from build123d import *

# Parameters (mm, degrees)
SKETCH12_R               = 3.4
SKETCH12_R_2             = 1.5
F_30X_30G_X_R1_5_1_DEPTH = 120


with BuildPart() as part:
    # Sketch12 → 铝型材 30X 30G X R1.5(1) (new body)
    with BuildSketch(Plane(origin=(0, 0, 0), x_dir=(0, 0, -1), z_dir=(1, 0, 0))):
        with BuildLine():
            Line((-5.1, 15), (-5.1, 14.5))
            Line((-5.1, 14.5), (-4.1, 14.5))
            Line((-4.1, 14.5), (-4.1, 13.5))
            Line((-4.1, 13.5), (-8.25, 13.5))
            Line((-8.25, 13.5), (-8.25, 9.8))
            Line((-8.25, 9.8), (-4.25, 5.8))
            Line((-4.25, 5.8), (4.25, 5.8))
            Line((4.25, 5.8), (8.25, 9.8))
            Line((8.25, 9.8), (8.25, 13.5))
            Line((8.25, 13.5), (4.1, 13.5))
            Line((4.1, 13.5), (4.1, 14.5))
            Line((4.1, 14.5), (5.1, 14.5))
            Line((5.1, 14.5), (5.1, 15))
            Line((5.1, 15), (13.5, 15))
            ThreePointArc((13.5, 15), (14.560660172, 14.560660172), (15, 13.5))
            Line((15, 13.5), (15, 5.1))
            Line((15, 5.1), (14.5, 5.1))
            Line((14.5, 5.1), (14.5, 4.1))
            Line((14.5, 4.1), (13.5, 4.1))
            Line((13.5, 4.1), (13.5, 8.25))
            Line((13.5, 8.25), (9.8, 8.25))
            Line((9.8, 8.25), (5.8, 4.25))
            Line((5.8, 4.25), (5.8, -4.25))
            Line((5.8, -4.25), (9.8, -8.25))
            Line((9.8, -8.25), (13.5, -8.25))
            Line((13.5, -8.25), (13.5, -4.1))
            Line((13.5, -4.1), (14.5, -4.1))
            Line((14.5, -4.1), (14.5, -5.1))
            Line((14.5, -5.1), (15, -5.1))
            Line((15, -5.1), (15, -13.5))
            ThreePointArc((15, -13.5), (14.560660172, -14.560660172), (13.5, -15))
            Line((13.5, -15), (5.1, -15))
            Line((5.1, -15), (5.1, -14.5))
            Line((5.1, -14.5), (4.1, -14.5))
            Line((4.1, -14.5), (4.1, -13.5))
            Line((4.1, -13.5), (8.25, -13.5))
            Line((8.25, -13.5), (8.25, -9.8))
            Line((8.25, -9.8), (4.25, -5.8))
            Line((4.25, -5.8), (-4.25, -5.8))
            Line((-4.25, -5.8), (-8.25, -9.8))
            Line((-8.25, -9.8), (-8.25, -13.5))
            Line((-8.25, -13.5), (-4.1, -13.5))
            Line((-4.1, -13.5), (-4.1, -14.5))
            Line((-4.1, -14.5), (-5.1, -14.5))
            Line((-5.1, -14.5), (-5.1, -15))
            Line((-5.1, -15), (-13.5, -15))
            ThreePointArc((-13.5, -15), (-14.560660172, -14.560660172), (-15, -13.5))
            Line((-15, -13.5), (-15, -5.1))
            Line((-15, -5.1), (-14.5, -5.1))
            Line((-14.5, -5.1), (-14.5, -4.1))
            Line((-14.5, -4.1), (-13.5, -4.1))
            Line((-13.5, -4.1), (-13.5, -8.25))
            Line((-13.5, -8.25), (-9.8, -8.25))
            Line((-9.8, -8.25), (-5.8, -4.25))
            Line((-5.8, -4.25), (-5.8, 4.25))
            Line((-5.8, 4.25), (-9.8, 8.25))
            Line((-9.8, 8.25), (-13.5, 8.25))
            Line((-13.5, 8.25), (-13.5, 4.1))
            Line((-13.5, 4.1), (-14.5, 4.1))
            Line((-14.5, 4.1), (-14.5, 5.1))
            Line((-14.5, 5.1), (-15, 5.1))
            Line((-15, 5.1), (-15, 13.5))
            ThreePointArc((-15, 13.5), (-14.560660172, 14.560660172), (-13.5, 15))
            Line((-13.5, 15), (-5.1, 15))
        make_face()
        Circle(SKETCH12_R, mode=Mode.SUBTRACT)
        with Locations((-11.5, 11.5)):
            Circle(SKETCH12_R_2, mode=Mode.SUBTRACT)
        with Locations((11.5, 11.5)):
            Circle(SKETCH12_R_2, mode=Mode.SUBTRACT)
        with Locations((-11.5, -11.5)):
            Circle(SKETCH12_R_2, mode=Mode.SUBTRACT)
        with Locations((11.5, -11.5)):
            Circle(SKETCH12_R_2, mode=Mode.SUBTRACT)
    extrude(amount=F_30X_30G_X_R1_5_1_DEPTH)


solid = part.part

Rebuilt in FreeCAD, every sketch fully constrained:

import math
import FreeCAD as App
import Part
import Sketcher

V = App.Vector

doc = App.newDocument("Part")
body = doc.addObject("PartDesign::Body", "Body")

# Sketch on YZ plane
sketch1 = body.newObject("Sketcher::SketchObject", "Sketch")
sketch1.AttachmentSupport = (doc.getObject("YZ_Plane"), [""])
sketch1.MapMode = "FlatFace"
sketch1.addGeometry([
    Part.LineSegment(V(14.5, 5.1, 0), V(15, 5.1, 0)),  # 0
    Part.LineSegment(V(15, 5.1, 0), V(15, 13.5, 0)),  # 1
    Part.ArcOfCircle(Part.Circle(V(13.5, 13.5, 0), V(0, 0, 1), 1.5), math.radians(0), math.radians(90)),  # 2
    Part.LineSegment(V(13.5, 15, 0), V(5.1, 15, 0)),  # 3
    Part.LineSegment(V(5.1, 15, 0), V(5.1, 14.5, 0)),  # 4
    Part.LineSegment(V(5.1, 14.5, 0), V(4.1, 14.5, 0)),  # 5
    Part.LineSegment(V(4.1, 14.5, 0), V(4.1, 13.5, 0)),  # 6
    Part.LineSegment(V(4.1, 13.5, 0), V(8.2, 13.5, 0)),  # 7
    Part.LineSegment(V(8.2, 13.5, 0), V(8.2, 9.8, 0)),  # 8
    Part.LineSegment(V(8.2, 9.8, 0), V(4.2, 5.8, 0)),  # 9
    Part.LineSegment(V(4.2, 5.8, 0), V(-4.2, 5.8, 0)),  # 10
    Part.LineSegment(V(-4.2, 5.8, 0), V(-8.2, 9.8, 0)),  # 11
    Part.LineSegment(V(-8.2, 9.8, 0), V(-8.2, 13.5, 0)),  # 12
    Part.LineSegment(V(-8.2, 13.5, 0), V(-4.1, 13.5, 0)),  # 13
    Part.LineSegment(V(-4.1, 13.5, 0), V(-4.1, 14.5, 0)),  # 14
    Part.LineSegment(V(-4.1, 14.5, 0), V(-5.1, 14.5, 0)),  # 15
    Part.LineSegment(V(-5.1, 14.5, 0), V(-5.1, 15, 0)),  # 16
    Part.LineSegment(V(-5.1, 15, 0), V(-13.5, 15, 0)),  # 17
    Part.ArcOfCircle(Part.Circle(V(-13.5, 13.5, 0), V(0, 0, 1), 1.5), math.radians(90), math.radians(180)),  # 18
    Part.LineSegment(V(-15, 13.5, 0), V(-15, 5.1, 0)),  # 19
    Part.LineSegment(V(-15, 5.1, 0), V(-14.5, 5.1, 0)),  # 20
    Part.LineSegment(V(-14.5, 5.1, 0), V(-14.5, 4.1, 0)),  # 21
    Part.LineSegment(V(-14.5, 4.1, 0), V(-13.5, 4.1, 0)),  # 22
    Part.LineSegment(V(-13.5, 4.1, 0), V(-13.5, 8.2, 0)),  # 23
    Part.LineSegment(V(-13.5, 8.2, 0), V(-9.8, 8.2, 0)),  # 24
    Part.LineSegment(V(-9.8, 8.2, 0), V(-5.8, 4.2, 0)),  # 25
    Part.LineSegment(V(-5.8, 4.2, 0), V(-5.8, -4.2, 0)),  # 26
    Part.LineSegment(V(-5.8, -4.2, 0), V(-9.8, -8.2, 0)),  # 27
    Part.LineSegment(V(-9.8, -8.2, 0), V(-13.5, -8.2, 0)),  # 28
    Part.LineSegment(V(-13.5, -8.2, 0), V(-13.5, -4.1, 0)),  # 29
    Part.LineSegment(V(-13.5, -4.1, 0), V(-14.5, -4.1, 0)),  # 30
    Part.LineSegment(V(-14.5, -4.1, 0), V(-14.5, -5.1, 0)),  # 31
    Part.LineSegment(V(-14.5, -5.1, 0), V(-15, -5.1, 0)),  # 32
    Part.LineSegment(V(-15, -5.1, 0), V(-15, -13.5, 0)),  # 33
    Part.ArcOfCircle(Part.Circle(V(-13.5, -13.5, 0), V(0, 0, 1), 1.5), math.radians(180), math.radians(270)),  # 34
    Part.LineSegment(V(-13.5, -15, 0), V(-5.1, -15, 0)),  # 35
    Part.LineSegment(V(-5.1, -15, 0), V(-5.1, -14.5, 0)),  # 36
    Part.LineSegment(V(-5.1, -14.5, 0), V(-4.1, -14.5, 0)),  # 37
    Part.LineSegment(V(-4.1, -14.5, 0), V(-4.1, -13.5, 0)),  # 38
    Part.LineSegment(V(-4.1, -13.5, 0), V(-8.2, -13.5, 0)),  # 39
    Part.LineSegment(V(-8.2, -13.5, 0), V(-8.2, -9.8, 0)),  # 40
    Part.LineSegment(V(-8.2, -9.8, 0), V(-4.2, -5.8, 0)),  # 41
    Part.LineSegment(V(-4.2, -5.8, 0), V(4.2, -5.8, 0)),  # 42
    Part.LineSegment(V(4.2, -5.8, 0), V(8.2, -9.8, 0)),  # 43
    Part.LineSegment(V(8.2, -9.8, 0), V(8.2, -13.5, 0)),  # 44
    Part.LineSegment(V(8.2, -13.5, 0), V(4.1, -13.5, 0)),  # 45
    Part.LineSegment(V(4.1, -13.5, 0), V(4.1, -14.5, 0)),  # 46
    Part.LineSegment(V(4.1, -14.5, 0), V(5.1, -14.5, 0)),  # 47
    Part.LineSegment(V(5.1, -14.5, 0), V(5.1, -15, 0)),  # 48
    Part.LineSegment(V(5.1, -15, 0), V(13.5, -15, 0)),  # 49
    Part.ArcOfCircle(Part.Circle(V(13.5, -13.5, 0), V(0, 0, 1), 1.5), math.radians(-90), math.radians(0)),  # 50
    Part.LineSegment(V(15, -13.5, 0), V(15, -5.1, 0)),  # 51
    Part.LineSegment(V(15, -5.1, 0), V(14.5, -5.1, 0)),  # 52
    Part.LineSegment(V(14.5, -5.1, 0), V(14.5, -4.1, 0)),  # 53
    Part.LineSegment(V(14.5, -4.1, 0), V(13.5, -4.1, 0)),  # 54
    Part.LineSegment(V(13.5, -4.1, 0), V(13.5, -8.2, 0)),  # 55
    Part.LineSegment(V(13.5, -8.2, 0), V(9.8, -8.2, 0)),  # 56
    Part.LineSegment(V(9.8, -8.2, 0), V(5.8, -4.2, 0)),  # 57
    Part.LineSegment(V(5.8, -4.2, 0), V(5.8, 4.2, 0)),  # 58
    Part.LineSegment(V(5.8, 4.2, 0), V(9.8, 8.2, 0)),  # 59
    Part.LineSegment(V(9.8, 8.2, 0), V(13.5, 8.2, 0)),  # 60
    Part.LineSegment(V(13.5, 8.2, 0), V(13.5, 4.1, 0)),  # 61
    Part.LineSegment(V(13.5, 4.1, 0), V(14.5, 4.1, 0)),  # 62
    Part.LineSegment(V(14.5, 4.1, 0), V(14.5, 5.1, 0)),  # 63
    Part.Circle(V(-11.5, -11.5, 0), V(0, 0, 1), 1.5),  # 64
    Part.Circle(V(-11.5, 11.5, 0), V(0, 0, 1), 1.5),  # 65
    Part.Circle(V(11.5, -11.5, 0), V(0, 0, 1), 1.5),  # 66
    Part.Circle(V(0, 0, 0), V(0, 0, 1), 3.4),  # 67
    Part.Circle(V(11.5, 11.5, 0), V(0, 0, 1), 1.5),  # 68
], False)
sketch1.addConstraint([
    Sketcher.Constraint("Coincident", 0, 2, 1, 1),
    Sketcher.Constraint("Tangent", 1, 2, 2, 1),
    Sketcher.Constraint("Tangent", 2, 2, 3, 1),
    Sketcher.Constraint("Coincident", 3, 2, 4, 1),
    Sketcher.Constraint("Coincident", 4, 2, 5, 1),
    Sketcher.Constraint("Coincident", 5, 2, 6, 1),
    Sketcher.Constraint("Coincident", 6, 2, 7, 1),
    Sketcher.Constraint("Coincident", 7, 2, 8, 1),
    Sketcher.Constraint("Coincident", 8, 2, 9, 1),
    Sketcher.Constraint("Coincident", 9, 2, 10, 1),
    Sketcher.Constraint("Coincident", 10, 2, 11, 1),
    Sketcher.Constraint("Coincident", 11, 2, 12, 1),
    Sketcher.Constraint("Coincident", 12, 2, 13, 1),
    Sketcher.Constraint("Coincident", 13, 2, 14, 1),
    Sketcher.Constraint("Coincident", 14, 2, 15, 1),
    Sketcher.Constraint("Coincident", 15, 2, 16, 1),
    Sketcher.Constraint("Coincident", 16, 2, 17, 1),
    Sketcher.Constraint("Tangent", 17, 2, 18, 1),
    Sketcher.Constraint("Tangent", 18, 2, 19, 1),
    Sketcher.Constraint("Coincident", 19, 2, 20, 1),
    Sketcher.Constraint("Coincident", 20, 2, 21, 1),
    Sketcher.Constraint("Coincident", 21, 2, 22, 1),
    Sketcher.Constraint("Coincident", 22, 2, 23, 1),
    Sketcher.Constraint("Coincident", 23, 2, 24, 1),
    Sketcher.Constraint("Coincident", 24, 2, 25, 1),
    Sketcher.Constraint("Coincident", 25, 2, 26, 1),
    Sketcher.Constraint("Coincident", 26, 2, 27, 1),
    Sketcher.Constraint("Coincident", 27, 2, 28, 1),
    Sketcher.Constraint("Coincident", 28, 2, 29, 1),
    Sketcher.Constraint("Coincident", 29, 2, 30, 1),
    Sketcher.Constraint("Coincident", 30, 2, 31, 1),
    Sketcher.Constraint("Coincident", 31, 2, 32, 1),
    Sketcher.Constraint("Coincident", 32, 2, 33, 1),
    Sketcher.Constraint("Tangent", 33, 2, 34, 1),
    Sketcher.Constraint("Tangent", 34, 2, 35, 1),
    Sketcher.Constraint("Coincident", 35, 2, 36, 1),
    Sketcher.Constraint("Coincident", 36, 2, 37, 1),
    Sketcher.Constraint("Coincident", 37, 2, 38, 1),
    Sketcher.Constraint("Coincident", 38, 2, 39, 1),
    Sketcher.Constraint("Coincident", 39, 2, 40, 1),
    Sketcher.Constraint("Coincident", 40, 2, 41, 1),
    Sketcher.Constraint("Coincident", 41, 2, 42, 1),
    Sketcher.Constraint("Coincident", 42, 2, 43, 1),
    Sketcher.Constraint("Coincident", 43, 2, 44, 1),
    Sketcher.Constraint("Coincident", 44, 2, 45, 1),
    Sketcher.Constraint("Coincident", 45, 2, 46, 1),
    Sketcher.Constraint("Coincident", 46, 2, 47, 1),
    Sketcher.Constraint("Coincident", 47, 2, 48, 1),
    Sketcher.Constraint("Coincident", 48, 2, 49, 1),
    Sketcher.Constraint("Tangent", 49, 2, 50, 1),
    Sketcher.Constraint("Tangent", 50, 2, 51, 1),
    Sketcher.Constraint("Coincident", 51, 2, 52, 1),
    Sketcher.Constraint("Coincident", 52, 2, 53, 1),
    Sketcher.Constraint("Coincident", 53, 2, 54, 1),
    Sketcher.Constraint("Coincident", 54, 2, 55, 1),
    Sketcher.Constraint("Coincident", 55, 2, 56, 1),
    Sketcher.Constraint("Coincident", 56, 2, 57, 1),
    Sketcher.Constraint("Coincident", 57, 2, 58, 1),
    Sketcher.Constraint("Coincident", 58, 2, 59, 1),
    Sketcher.Constraint("Coincident", 59, 2, 60, 1),
    Sketcher.Constraint("Coincident", 60, 2, 61, 1),
    Sketcher.Constraint("Coincident", 61, 2, 62, 1),
    Sketcher.Constraint("Coincident", 62, 2, 63, 1),
    Sketcher.Constraint("Coincident", 63, 2, 0, 1),
    Sketcher.Constraint("Horizontal", 0),
    Sketcher.Constraint("Vertical", 1),
    Sketcher.Constraint("Horizontal", 3),
    Sketcher.Constraint("Vertical", 4),
    Sketcher.Constraint("Horizontal", 5),
    Sketcher.Constraint("Vertical", 6),
    Sketcher.Constraint("Horizontal", 7),
    Sketcher.Constraint("Vertical", 8),
    Sketcher.Constraint("Horizontal", 10),
    Sketcher.Constraint("Vertical", 12),
    Sketcher.Constraint("Horizontal", 13),
    Sketcher.Constraint("Vertical", 14),
    Sketcher.Constraint("Horizontal", 15),
    Sketcher.Constraint("Vertical", 16),
    Sketcher.Constraint("Horizontal", 17),
    Sketcher.Constraint("Vertical", 19),
    Sketcher.Constraint("Horizontal", 20),
    Sketcher.Constraint("Vertical", 21),
    Sketcher.Constraint("Horizontal", 22),
    Sketcher.Constraint("Vertical", 23),
    Sketcher.Constraint("Horizontal", 24),
    Sketcher.Constraint("Vertical", 26),
    Sketcher.Constraint("Horizontal", 28),
    Sketcher.Constraint("Vertical", 29),
    Sketcher.Constraint("Horizontal", 30),
    Sketcher.Constraint("Vertical", 31),
    Sketcher.Constraint("Horizontal", 32),
    Sketcher.Constraint("Vertical", 33),
    Sketcher.Constraint("Horizontal", 35),
    Sketcher.Constraint("Vertical", 36),
    Sketcher.Constraint("Horizontal", 37),
    Sketcher.Constraint("Vertical", 38),
    Sketcher.Constraint("Horizontal", 39),
    Sketcher.Constraint("Vertical", 40),
    Sketcher.Constraint("Horizontal", 42),
    Sketcher.Constraint("Vertical", 44),
    Sketcher.Constraint("Horizontal", 45),
    Sketcher.Constraint("Vertical", 46),
    Sketcher.Constraint("Horizontal", 47),
    Sketcher.Constraint("Vertical", 48),
    Sketcher.Constraint("Horizontal", 49),
    Sketcher.Constraint("Vertical", 51),
    Sketcher.Constraint("Horizontal", 52),
    Sketcher.Constraint("Vertical", 53),
    Sketcher.Constraint("Horizontal", 54),
    Sketcher.Constraint("Vertical", 55),
    Sketcher.Constraint("Horizontal", 56),
    Sketcher.Constraint("Vertical", 58),
    Sketcher.Constraint("Horizontal", 60),
    Sketcher.Constraint("Vertical", 61),
    Sketcher.Constraint("Horizontal", 62),
    Sketcher.Constraint("Vertical", 63),
    Sketcher.Constraint("Coincident", 67, 3, -1, 1),
    Sketcher.Constraint("Equal", 2, 18),
    Sketcher.Constraint("Equal", 18, 34),
    Sketcher.Constraint("Equal", 34, 50),
    Sketcher.Constraint("Equal", 50, 64),
    Sketcher.Constraint("Equal", 64, 65),
    Sketcher.Constraint("Equal", 65, 66),
    Sketcher.Constraint("Equal", 66, 68),
    Sketcher.Constraint("Symmetric", 2, 3, 34, 3, -1, 1),
    Sketcher.Constraint("Symmetric", 18, 3, 50, 3, -1, 1),
    Sketcher.Constraint("Symmetric", 65, 3, 66, 3, -1, 1),
    Sketcher.Constraint("Symmetric", 64, 3, 68, 3, -1, 1),
    Sketcher.Constraint("Symmetric", 4, 2, 36, 2, -1, 1),
    Sketcher.Constraint("Symmetric", 6, 2, 38, 2, -1, 1),
    Sketcher.Constraint("Symmetric", 8, 2, 40, 2, -1, 1),
    Sketcher.Constraint("Symmetric", 9, 2, 41, 2, -1, 1),
    Sketcher.Constraint("Symmetric", 11, 2, 43, 2, -1, 1),
    Sketcher.Constraint("Symmetric", 13, 2, 45, 2, -1, 1),
    Sketcher.Constraint("Symmetric", 15, 2, 47, 2, -1, 1),
    Sketcher.Constraint("Symmetric", 20, 2, 52, 2, -1, 1),
    Sketcher.Constraint("Symmetric", 22, 2, 54, 2, -1, 1),
    Sketcher.Constraint("Symmetric", 24, 2, 56, 2, -1, 1),
    Sketcher.Constraint("Symmetric", 25, 2, 57, 2, -1, 1),
    Sketcher.Constraint("Symmetric", 27, 2, 59, 2, -1, 1),
    Sketcher.Constraint("Symmetric", 29, 2, 61, 2, -1, 1),
    Sketcher.Constraint("Symmetric", 31, 2, 63, 2, -1, 1),
    Sketcher.Constraint("Symmetric", 2, 3, 18, 3, -2),
    Sketcher.Constraint("Symmetric", 64, 3, 66, 3, -2),
    Sketcher.Constraint("Symmetric", 8, 2, 11, 2, -2),
    Sketcher.Constraint("Symmetric", 6, 2, 13, 2, -2),
    Sketcher.Constraint("Symmetric", 4, 2, 15, 2, -2),
    Sketcher.Constraint("Symmetric", 31, 2, 52, 2, -2),
    Sketcher.Constraint("Symmetric", 29, 2, 54, 2, -2),
    Sketcher.Constraint("Symmetric", 27, 2, 56, 2, -2),
    Sketcher.Constraint("Perpendicular", 9, 11),
    Sketcher.Constraint("Parallel", 11, 25),
    Sketcher.Constraint("Perpendicular", 25, 27),
    Sketcher.Constraint("Perpendicular", 41, 43),
    Sketcher.Constraint("Perpendicular", 57, 59),
    Sketcher.Constraint("Horizontal", 1, 2, 6, 2),
    Sketcher.Constraint("Horizontal", 26, 2, 57, 2),
    Sketcher.Constraint("Vertical", 17, 2, 22, 2),
    Sketcher.Constraint("Equal", 15, 22),
    Sketcher.Constraint("Equal", 49, 1),
    Sketcher.Constraint("Equal", 52, 4),
    Sketcher.Constraint("Equal", 60, 8),
    Sketcher.Constraint("Equal", 14, 21),
    Sketcher.Constraint("Equal", 45, 23),
    Sketcher.Constraint("Equal", 42, 26),
    Sketcher.Constraint("Equal", 11, 25),
    Sketcher.Constraint("Diameter", 64, 3.0),
    Sketcher.Constraint("Diameter", 67, 6.8),
    Sketcher.Constraint("DistanceX", 5, 2, 5, 1, 1.0),
    Sketcher.Constraint("DistanceX", 3, 2, 3, 1, 8.4),
    Sketcher.Constraint("DistanceX", 10, 2, 10, 1, 8.5),
    Sketcher.Constraint("DistanceX", 24, 1, 24, 2, 3.7),
    Sketcher.Constraint("DistanceX", -1, 1, 0, 2, 15.0),
    Sketcher.Constraint("DistanceX", 7, 1, 7, 2, 4.15),
    Sketcher.Constraint("DistanceX", 64, 3, -1, 1, 11.5),
    Sketcher.Constraint("DistanceY", 64, 3, -1, 1, 11.5),
])
pad1 = body.newObject("PartDesign::Pad", "Pad")
pad1.Profile = sketch1
pad1.Length = 120

doc.recompute()
